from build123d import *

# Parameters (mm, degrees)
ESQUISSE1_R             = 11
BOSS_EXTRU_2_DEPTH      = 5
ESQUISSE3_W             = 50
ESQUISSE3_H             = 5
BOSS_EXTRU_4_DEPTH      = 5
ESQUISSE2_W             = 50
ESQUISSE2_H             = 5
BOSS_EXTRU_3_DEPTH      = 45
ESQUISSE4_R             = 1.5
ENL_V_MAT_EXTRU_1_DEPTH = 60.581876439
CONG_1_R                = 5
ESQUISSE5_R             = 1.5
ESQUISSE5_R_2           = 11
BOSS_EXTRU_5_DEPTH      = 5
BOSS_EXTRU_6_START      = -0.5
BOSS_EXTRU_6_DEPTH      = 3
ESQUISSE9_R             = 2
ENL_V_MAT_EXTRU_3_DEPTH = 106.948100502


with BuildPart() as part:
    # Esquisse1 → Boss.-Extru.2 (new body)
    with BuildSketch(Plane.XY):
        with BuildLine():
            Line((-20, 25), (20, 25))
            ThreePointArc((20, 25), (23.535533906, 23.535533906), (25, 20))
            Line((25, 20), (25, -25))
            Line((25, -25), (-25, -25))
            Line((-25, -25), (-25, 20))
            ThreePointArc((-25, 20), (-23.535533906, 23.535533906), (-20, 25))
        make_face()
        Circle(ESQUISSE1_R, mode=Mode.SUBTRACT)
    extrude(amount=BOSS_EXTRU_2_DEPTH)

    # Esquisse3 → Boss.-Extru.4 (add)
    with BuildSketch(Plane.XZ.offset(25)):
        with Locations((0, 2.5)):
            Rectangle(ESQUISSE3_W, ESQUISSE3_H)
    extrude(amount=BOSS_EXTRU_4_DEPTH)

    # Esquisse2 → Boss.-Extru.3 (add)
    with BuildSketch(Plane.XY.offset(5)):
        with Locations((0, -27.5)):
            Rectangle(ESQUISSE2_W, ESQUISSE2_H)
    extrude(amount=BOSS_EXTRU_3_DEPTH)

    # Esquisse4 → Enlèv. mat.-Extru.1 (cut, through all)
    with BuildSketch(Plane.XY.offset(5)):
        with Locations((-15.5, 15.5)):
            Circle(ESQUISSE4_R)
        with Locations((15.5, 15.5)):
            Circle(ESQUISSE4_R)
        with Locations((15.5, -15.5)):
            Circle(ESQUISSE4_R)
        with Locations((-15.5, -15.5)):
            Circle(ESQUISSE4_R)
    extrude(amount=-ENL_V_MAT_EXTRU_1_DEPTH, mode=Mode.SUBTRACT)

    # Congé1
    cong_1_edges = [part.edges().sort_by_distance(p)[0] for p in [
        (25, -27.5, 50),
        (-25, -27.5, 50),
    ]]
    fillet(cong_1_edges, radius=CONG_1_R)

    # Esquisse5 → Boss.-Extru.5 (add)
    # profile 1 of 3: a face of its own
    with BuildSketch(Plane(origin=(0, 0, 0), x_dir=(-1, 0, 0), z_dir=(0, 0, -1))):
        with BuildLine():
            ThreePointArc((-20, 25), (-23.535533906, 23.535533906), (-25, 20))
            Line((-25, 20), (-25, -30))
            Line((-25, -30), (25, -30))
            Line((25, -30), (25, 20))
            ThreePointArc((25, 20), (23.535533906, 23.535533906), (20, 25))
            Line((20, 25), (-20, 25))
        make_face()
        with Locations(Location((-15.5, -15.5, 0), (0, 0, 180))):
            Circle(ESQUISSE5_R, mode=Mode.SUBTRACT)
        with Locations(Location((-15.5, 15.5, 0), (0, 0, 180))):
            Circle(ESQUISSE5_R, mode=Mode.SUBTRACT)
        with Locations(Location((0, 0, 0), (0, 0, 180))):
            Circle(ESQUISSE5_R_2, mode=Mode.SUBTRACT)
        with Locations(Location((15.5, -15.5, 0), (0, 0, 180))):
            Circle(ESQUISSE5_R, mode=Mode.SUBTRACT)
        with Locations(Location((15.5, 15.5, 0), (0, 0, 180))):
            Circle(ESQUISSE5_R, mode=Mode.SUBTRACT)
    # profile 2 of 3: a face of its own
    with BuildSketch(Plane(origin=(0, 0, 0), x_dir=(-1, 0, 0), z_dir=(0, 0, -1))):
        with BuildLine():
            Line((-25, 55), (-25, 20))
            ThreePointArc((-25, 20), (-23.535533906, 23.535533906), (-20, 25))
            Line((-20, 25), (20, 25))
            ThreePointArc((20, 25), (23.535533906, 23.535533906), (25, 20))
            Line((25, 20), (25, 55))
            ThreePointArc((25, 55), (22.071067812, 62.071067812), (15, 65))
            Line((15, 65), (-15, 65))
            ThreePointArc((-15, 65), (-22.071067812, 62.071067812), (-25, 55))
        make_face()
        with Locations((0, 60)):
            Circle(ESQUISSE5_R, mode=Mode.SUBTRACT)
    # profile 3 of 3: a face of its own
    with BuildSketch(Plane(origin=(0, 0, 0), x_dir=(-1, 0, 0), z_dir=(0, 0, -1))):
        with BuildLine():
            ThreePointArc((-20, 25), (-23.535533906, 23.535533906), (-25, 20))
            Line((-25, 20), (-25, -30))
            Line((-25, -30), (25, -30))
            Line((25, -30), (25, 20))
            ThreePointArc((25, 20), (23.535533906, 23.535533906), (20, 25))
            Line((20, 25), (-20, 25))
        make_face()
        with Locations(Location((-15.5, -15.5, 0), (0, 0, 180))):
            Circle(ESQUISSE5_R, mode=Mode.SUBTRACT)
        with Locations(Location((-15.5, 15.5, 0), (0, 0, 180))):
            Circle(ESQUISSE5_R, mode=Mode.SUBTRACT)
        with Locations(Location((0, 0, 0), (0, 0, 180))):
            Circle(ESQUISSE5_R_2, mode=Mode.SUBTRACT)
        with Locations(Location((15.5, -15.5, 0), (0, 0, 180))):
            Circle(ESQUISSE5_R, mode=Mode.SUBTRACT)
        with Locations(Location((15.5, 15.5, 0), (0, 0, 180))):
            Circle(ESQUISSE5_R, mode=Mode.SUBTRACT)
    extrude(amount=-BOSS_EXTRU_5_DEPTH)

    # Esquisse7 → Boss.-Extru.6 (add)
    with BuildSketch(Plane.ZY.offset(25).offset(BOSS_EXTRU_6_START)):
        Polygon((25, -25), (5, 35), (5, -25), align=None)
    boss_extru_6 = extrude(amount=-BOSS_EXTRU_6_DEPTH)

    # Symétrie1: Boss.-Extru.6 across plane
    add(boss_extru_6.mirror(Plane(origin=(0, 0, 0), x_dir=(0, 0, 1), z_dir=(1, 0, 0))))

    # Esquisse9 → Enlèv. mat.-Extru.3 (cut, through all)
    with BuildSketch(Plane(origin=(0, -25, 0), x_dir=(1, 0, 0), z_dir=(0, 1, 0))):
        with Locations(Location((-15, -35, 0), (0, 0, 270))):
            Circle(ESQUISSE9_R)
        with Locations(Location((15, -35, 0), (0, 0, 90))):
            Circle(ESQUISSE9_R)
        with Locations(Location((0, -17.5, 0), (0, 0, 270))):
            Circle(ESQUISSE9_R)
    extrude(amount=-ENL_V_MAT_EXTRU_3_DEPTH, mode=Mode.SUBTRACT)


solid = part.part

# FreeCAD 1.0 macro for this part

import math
import FreeCAD as App
import Part
import Sketcher
from FreeCAD import Vector
Q = App.Units.Quantity


def edges_at(feature, points):
    """Names of the edges that pass closest to the given points."""
    edges = feature.Shape.Edges
    near = lambda p: min(range(len(edges)), key=lambda i: edges[i].distToShape(Part.Vertex(*p))[0])
    return sorted({f"Edge{near(p) + 1}" for p in points})


def add_polygon(sketch, points):
    """Adds a closed chain of lines whose ends are joined by coincident constraints."""
    first, n = sketch.GeometryCount, len(points)
    for a, b in zip(points, points[1:] + points[:1]):
        sketch.addGeometry(Part.LineSegment(App.Vector(*a, 0), App.Vector(*b, 0)), False)
    for i in range(n):
        sketch.addConstraint(Sketcher.Constraint("Coincident", first + i, 2, first + (i + 1) % n, 1))

doc = App.newDocument("Part")
body = doc.addObject("PartDesign::Body", "Body")

# Sketch on XY plane
sketch1 = doc.addObject("Sketcher::SketchObject", "Sketch")
body.addObject(sketch1)
sketch1.AttachmentSupport = (doc.XY_Plane, [""])
sketch1.MapMode = "FlatFace"
sketch1.addGeometry(Part.LineSegment(Vector(20, 25, 0), Vector(-20, 25, 0)), False)
sketch1.addGeometry(Part.ArcOfCircle(Part.Circle(Vector(-20, 20, 0), Vector(0, 0, 1), 5), math.radians(90), math.radians(180)), False)
sketch1.addGeometry(Part.LineSegment(Vector(-25, 20, 0), Vector(-25, -25, 0)), False)
sketch1.addGeometry(Part.LineSegment(Vector(-25, -25, 0), Vector(25, -25, 0)), False)
sketch1.addGeometry(Part.LineSegment(Vector(25, -25, 0), Vector(25, 20, 0)), False)
sketch1.addGeometry(Part.ArcOfCircle(Part.Circle(Vector(20, 20, 0), Vector(0, 0, 1), 5), math.radians(0), math.radians(90)), False)
sketch1.addGeometry(Part.Circle(Vector(0, 0, 0), Vector(0, 0, 1), 11), False)
sketch1.addConstraint(Sketcher.Constraint("Tangent", 0, 2, 1, 1))
sketch1.addConstraint(Sketcher.Constraint("Tangent", 1, 2, 2, 1))
sketch1.addConstraint(Sketcher.Constraint("Coincident", 2, 2, 3, 1))
sketch1.addConstraint(Sketcher.Constraint("Coincident", 3, 2, 4, 1))
sketch1.addConstraint(Sketcher.Constraint("Tangent", 4, 2, 5, 1))
sketch1.addConstraint(Sketcher.Constraint("Tangent", 5, 2, 0, 1))
sketch1.addConstraint(Sketcher.Constraint("Horizontal", 0))
sketch1.addConstraint(Sketcher.Constraint("Vertical", 2))
sketch1.addConstraint(Sketcher.Constraint("Horizontal", 3))
sketch1.addConstraint(Sketcher.Constraint("Vertical", 4))
sketch1.addConstraint(Sketcher.Constraint("Coincident", 6, 3, -1, 1))
sketch1.addConstraint(Sketcher.Constraint("Equal", 1, 5))
sketch1.addConstraint(Sketcher.Constraint("Diameter", 6, Q("22 mm")))
sketch1.addConstraint(Sketcher.Constraint("Radius", 1, Q("5 mm")))
sketch1.addConstraint(Sketcher.Constraint("DistanceX", 0, 2, 0, 1, Q("40 mm")))
sketch1.addConstraint(Sketcher.Constraint("DistanceY", 2, 2, 2, 1, Q("45 mm")))
sketch1.addConstraint(Sketcher.Constraint("DistanceX", 1, 3, -1, 1, Q("20 mm")))
sketch1.addConstraint(Sketcher.Constraint("DistanceY", -1, 1, 1, 3, Q("20 mm")))
pad1 = doc.addObject("PartDesign::Pad", "Pad")
body.addObject(pad1)
pad1.Profile = sketch1
pad1.Length = 5

# Sketch on XZ plane
sketch2 = doc.addObject("Sketcher::SketchObject", "Sketch001")
body.addObject(sketch2)
sketch2.AttachmentSupport = (doc.XZ_Plane, [""])
sketch2.MapMode = "FlatFace"
sketch2.AttachmentOffset = App.Placement(Vector(0, 0, 25), App.Rotation())
add_polygon(sketch2, [(-25, 5), (-25, 0), (25, 0), (25, 5)])  # lines 0-3
sketch2.addConstraint(Sketcher.Constraint("Vertical", 0))
sketch2.addConstraint(Sketcher.Constraint("Horizontal", 1))
sketch2.addConstraint(Sketcher.Constraint("Vertical", 2))
sketch2.addConstraint(Sketcher.Constraint("Horizontal", 3))
sketch2.addConstraint(Sketcher.Constraint("Symmetric", 0, 2, 1, 2, -1, 1))
sketch2.addConstraint(Sketcher.Constraint("DistanceX", 1, 1, 1, 2, Q("50 mm")))
sketch2.addConstraint(Sketcher.Constraint("DistanceY", 0, 2, 0, 1, Q("5 mm")))
pad2 = doc.addObject("PartDesign::Pad", "Pad001")
body.addObject(pad2)
pad2.Profile = sketch2
pad2.Length = 5

# Sketch on XY plane
sketch3 = doc.addObject("Sketcher::SketchObject", "Sketch002")
body.addObject(sketch3)
sketch3.AttachmentSupport = (doc.XY_Plane, [""])
sketch3.MapMode = "FlatFace"
sketch3.AttachmentOffset = App.Placement(Vector(0, 0, 5), App.Rotation())
add_polygon(sketch3, [(-25, -25), (-25, -30), (25, -30), (25, -25)])  # lines 0-3
sketch3.addConstraint(Sketcher.Constraint("Vertical", 0))
sketch3.addConstraint(Sketcher.Constraint("Horizontal", 1))
sketch3.addConstraint(Sketcher.Constraint("Vertical", 2))
sketch3.addConstraint(Sketcher.Constraint("Horizontal", 3))
sketch3.addConstraint(Sketcher.Constraint("DistanceX", 1, 1, 1, 2, Q("50 mm")))
sketch3.addConstraint(Sketcher.Constraint("DistanceY", 0, 2, 0, 1, Q("5 mm")))
sketch3.addConstraint(Sketcher.Constraint("DistanceX", 0, 2, -1, 1, Q("25 mm")))
sketch3.addConstraint(Sketcher.Constraint("DistanceY", 0, 2, -1, 1, Q("30 mm")))
pad3 = doc.addObject("PartDesign::Pad", "Pad002")
body.addObject(pad3)
pad3.Profile = sketch3
pad3.Length = 45

# Sketch on XY plane
sketch4 = doc.addObject("Sketcher::SketchObject", "Sketch003")
body.addObject(sketch4)
sketch4.AttachmentSupport = (doc.XY_Plane, [""])
sketch4.MapMode = "FlatFace"
sketch4.AttachmentOffset = App.Placement(Vector(0, 0, 5), App.Rotation())
sketch4.addGeometry(Part.Circle(Vector(-15.5, 15.5, 0), Vector(0, 0, 1), 1.5), False)
sketch4.addGeometry(Part.Circle(Vector(15.5, 15.5, 0), Vector(0, 0, 1), 1.5), False)
sketch4.addGeometry(Part.Circle(Vector(15.5, -15.5, 0), Vector(0, 0, 1), 1.5), False)
sketch4.addGeometry(Part.Circle(Vector(-15.5, -15.5, 0), Vector(0, 0, 1), 1.5), False)
sketch4.addConstraint(Sketcher.Constraint("Equal", 0, 1))
sketch4.addConstraint(Sketcher.Constraint("Equal", 1, 2))
sketch4.addConstraint(Sketcher.Constraint("Equal", 2, 3))
sketch4.addConstraint(Sketcher.Constraint("Symmetric", 0, 3, 2, 3, -1, 1))
sketch4.addConstraint(Sketcher.Constraint("Symmetric", 1, 3, 3, 3, -1, 1))
sketch4.addConstraint(Sketcher.Constraint("Symmetric", 0, 3, 1, 3, -2))
sketch4.addConstraint(Sketcher.Constraint("Diameter", 0, Q("3 mm")))
sketch4.addConstraint(Sketcher.Constraint("DistanceX", 0, 3, 1, 3, Q("31 mm")))
sketch4.addConstraint(Sketcher.Constraint("DistanceY", 2, 3, 1, 3, Q("31 mm")))
pocket1 = doc.addObject("PartDesign::Pocket", "Pocket")
body.addObject(pocket1)
pocket1.Profile = sketch4
pocket1.Type = "ThroughAll"
doc.recompute()

fillet = doc.addObject("PartDesign::Fillet", "Fillet")
body.addObject(fillet)
fillet.Base = (pocket1, edges_at(pocket1, [(25, -27.5, 50), (-25, -27.5, 50)]))
fillet.Radius = 5

# Sketch on XY plane
sketch5 = doc.addObject("Sketcher::SketchObject", "Sketch004")
body.addObject(sketch5)
sketch5.AttachmentSupport = (doc.XY_Plane, [""])
sketch5.MapMode = "FlatFace"
sketch5.addGeometry(Part.LineSegment(Vector(25, -30, 0), Vector(-25, -30, 0)), False)
sketch5.addGeometry(Part.LineSegment(Vector(-25, -30, 0), Vector(-25, 55, 0)), False)
sketch5.addGeometry(Part.ArcOfCircle(Part.Circle(Vector(-15, 55, 0), Vector(0, 0, 1), 10), math.radians(90), math.radians(180)), False)
sketch5.addGeometry(Part.LineSegment(Vector(-15, 65, 0), Vector(15, 65, 0)), False)
sketch5.addGeometry(Part.ArcOfCircle(Part.Circle(Vector(15, 55, 0), Vector(0, 0, 1), 10), math.radians(0), math.radians(90)), False)
sketch5.addGeometry(Part.LineSegment(Vector(25, 55, 0), Vector(25, -30, 0)), False)
sketch5.addGeometry(Part.Circle(Vector(15.5, -15.5, 0), Vector(0, 0, 1), 1.5), False)
sketch5.addGeometry(Part.Circle(Vector(-15.5, -15.5, 0), Vector(0, 0, 1), 1.5), False)
sketch5.addGeometry(Part.Circle(Vector(15.5, 15.5, 0), Vector(0, 0, 1), 1.5), False)
sketch5.addGeometry(Part.Circle(Vector(0, 0, 0), Vector(0, 0, 1), 11), False)
sketch5.addGeometry(Part.Circle(Vector(-15.5, 15.5, 0), Vector(0, 0, 1), 1.5), False)
sketch5.addGeometry(Part.Circle(Vector(0, 60, 0), Vector(0, 0, 1), 1.5), False)
sketch5.addConstraint(Sketcher.Constraint("Coincident", 0, 2, 1, 1))
sketch5.addConstraint(Sketcher.Constraint("Tangent", 1, 2, 2, 2))
sketch5.addConstraint(Sketcher.Constraint("Tangent", 2, 1, 3, 1))
sketch5.addConstraint(Sketcher.Constraint("Tangent", 3, 2, 4, 2))
sketch5.addConstraint(Sketcher.Constraint("Tangent", 4, 1, 5, 1))
sketch5.addConstraint(Sketcher.Constraint("Coincident", 5, 2, 0, 1))
sketch5.addConstraint(Sketcher.Constraint("Horizontal", 0))
sketch5.addConstraint(Sketcher.Constraint("Vertical", 1))
sketch5.addConstraint(Sketcher.Constraint("Horizontal", 3))
sketch5.addConstraint(Sketcher.Constraint("Vertical", 5))
sketch5.addConstraint(Sketcher.Constraint("Coincident", 9, 3, -1, 1))
sketch5.addConstraint(Sketcher.Constraint("Equal", 2, 4))
sketch5.addConstraint(Sketcher.Constraint("Equal", 6, 7))
sketch5.addConstraint(Sketcher.Constraint("Equal", 7, 8))
sketch5.addConstraint(Sketcher.Constraint("Equal", 8, 10))
sketch5.addConstraint(Sketcher.Constraint("Equal", 10, 11))
sketch5.addConstraint(Sketcher.Constraint("Symmetric", 7, 3, 8, 3, -1, 1))
sketch5.addConstraint(Sketcher.Constraint("Symmetric", 6, 3, 10, 3, -1, 1))
sketch5.addConstraint(Sketcher.Constraint("Symmetric", 6, 3, 7, 3, -2))
sketch5.addConstraint(Sketcher.Constraint("PointOnObject", 11, 3, -2))
sketch5.addConstraint(Sketcher.Constraint("Diameter", 6, Q("3 mm")))
sketch5.addConstraint(Sketcher.Constraint("Diameter", 9, Q("22 mm")))
sketch5.addConstraint(Sketcher.Constraint("Radius", 2, Q("10 mm")))
sketch5.addConstraint(Sketcher.Constraint("DistanceX", 0, 2, 0, 1, Q("50 mm")))
sketch5.addConstraint(Sketcher.Constraint("DistanceY", 1, 1, 1, 2, Q("85 mm")))
sketch5.addConstraint(Sketcher.Constraint("DistanceX", 2, 3, -1, 1, Q("15 mm")))
sketch5.addConstraint(Sketcher.Constraint("DistanceY", -1, 1, 2, 3, Q("55 mm")))
sketch5.addConstraint(Sketcher.Constraint("DistanceY", -1, 1, 11, 3, Q("60 mm")))
sketch5.addConstraint(Sketcher.Constraint("DistanceX", 7, 3, 6, 3, Q("31 mm")))
sketch5.addConstraint(Sketcher.Constraint("DistanceY", 6, 3, 8, 3, Q("31 mm")))
pad4 = doc.addObject("PartDesign::Pad", "Pad003")
body.addObject(pad4)
pad4.Profile = sketch5
pad4.Length = 5

# Sketch on YZ plane
sketch6 = doc.addObject("Sketcher::SketchObject", "Sketch005")
body.addObject(sketch6)
sketch6.AttachmentSupport = (doc.YZ_Plane, [""])
sketch6.MapMode = "FlatFace"
sketch6.AttachmentOffset = App.Placement(Vector(0, 0, -24.5), App.Rotation())
add_polygon(sketch6, [(-25, 25), (35, 5), (-25, 5)])  # lines 0-2
sketch6.addConstraint(Sketcher.Constraint("Horizontal", 1))
sketch6.addConstraint(Sketcher.Constraint("Vertical", 2))
sketch6.addConstraint(Sketcher.Constraint("DistanceX", 1, 2, 1, 1, Q("60 mm")))
sketch6.addConstraint(Sketcher.Constraint("DistanceY", 2, 1, 2, 2, Q("20 mm")))
sketch6.addConstraint(Sketcher.Constraint("DistanceX", -1, 1, 0, 2, Q("35 mm")))
sketch6.addConstraint(Sketcher.Constraint("DistanceY", -1, 1, 0, 2, Q("5 mm")))
pad5 = doc.addObject("PartDesign::Pad", "Pad004")
body.addObject(pad5)
pad5.Profile = sketch6
pad5.Length = 3
doc.recompute()

mirrored = doc.addObject("PartDesign::Mirrored", "Mirrored")
body.addObject(mirrored)
mirrored.Originals = [pad5]
mirrored.MirrorPlane = (doc.YZ_Plane, [""])
body.Tip = mirrored

# Sketch on XZ plane
sketch7 = doc.addObject("Sketcher::SketchObject", "Sketch006")
body.addObject(sketch7)
sketch7.AttachmentSupport = (doc.XZ_Plane, [""])
sketch7.MapMode = "FlatFace"
sketch7.AttachmentOffset = App.Placement(Vector(0, 0, 25), App.Rotation())
sketch7.addGeometry(Part.Circle(Vector(-15, 35, 0), Vector(0, 0, 1), 2), False)
sketch7.addGeometry(Part.Circle(Vector(15, 35, 0), Vector(0, 0, 1), 2), False)
sketch7.addGeometry(Part.Circle(Vector(0, 17.5, 0), Vector(0, 0, 1), 2), False)
sketch7.addConstraint(Sketcher.Constraint("Equal", 0, 1))
sketch7.addConstraint(Sketcher.Constraint("Equal", 1, 2))
sketch7.addConstraint(Sketcher.Constraint("Symmetric", 0, 3, 1, 3, -2))
sketch7.addConstraint(Sketcher.Constraint("PointOnObject", 2, 3, -2))
sketch7.addConstraint(Sketcher.Constraint("Diameter", 0, Q("4 mm")))
sketch7.addConstraint(Sketcher.Constraint("DistanceX", 0, 3, -1, 1, Q("15 mm")))
sketch7.addConstraint(Sketcher.Constraint("DistanceY", -1, 1, 0, 3, Q("35 mm")))
sketch7.addConstraint(Sketcher.Constraint("DistanceY", -1, 1, 2, 3, Q("17.5 mm")))
pocket2 = doc.addObject("PartDesign::Pocket", "Pocket001")
body.addObject(pocket2)
pocket2.Profile = sketch7
pocket2.Type = "ThroughAll"
pocket2.Reversed = True

doc.recompute()
